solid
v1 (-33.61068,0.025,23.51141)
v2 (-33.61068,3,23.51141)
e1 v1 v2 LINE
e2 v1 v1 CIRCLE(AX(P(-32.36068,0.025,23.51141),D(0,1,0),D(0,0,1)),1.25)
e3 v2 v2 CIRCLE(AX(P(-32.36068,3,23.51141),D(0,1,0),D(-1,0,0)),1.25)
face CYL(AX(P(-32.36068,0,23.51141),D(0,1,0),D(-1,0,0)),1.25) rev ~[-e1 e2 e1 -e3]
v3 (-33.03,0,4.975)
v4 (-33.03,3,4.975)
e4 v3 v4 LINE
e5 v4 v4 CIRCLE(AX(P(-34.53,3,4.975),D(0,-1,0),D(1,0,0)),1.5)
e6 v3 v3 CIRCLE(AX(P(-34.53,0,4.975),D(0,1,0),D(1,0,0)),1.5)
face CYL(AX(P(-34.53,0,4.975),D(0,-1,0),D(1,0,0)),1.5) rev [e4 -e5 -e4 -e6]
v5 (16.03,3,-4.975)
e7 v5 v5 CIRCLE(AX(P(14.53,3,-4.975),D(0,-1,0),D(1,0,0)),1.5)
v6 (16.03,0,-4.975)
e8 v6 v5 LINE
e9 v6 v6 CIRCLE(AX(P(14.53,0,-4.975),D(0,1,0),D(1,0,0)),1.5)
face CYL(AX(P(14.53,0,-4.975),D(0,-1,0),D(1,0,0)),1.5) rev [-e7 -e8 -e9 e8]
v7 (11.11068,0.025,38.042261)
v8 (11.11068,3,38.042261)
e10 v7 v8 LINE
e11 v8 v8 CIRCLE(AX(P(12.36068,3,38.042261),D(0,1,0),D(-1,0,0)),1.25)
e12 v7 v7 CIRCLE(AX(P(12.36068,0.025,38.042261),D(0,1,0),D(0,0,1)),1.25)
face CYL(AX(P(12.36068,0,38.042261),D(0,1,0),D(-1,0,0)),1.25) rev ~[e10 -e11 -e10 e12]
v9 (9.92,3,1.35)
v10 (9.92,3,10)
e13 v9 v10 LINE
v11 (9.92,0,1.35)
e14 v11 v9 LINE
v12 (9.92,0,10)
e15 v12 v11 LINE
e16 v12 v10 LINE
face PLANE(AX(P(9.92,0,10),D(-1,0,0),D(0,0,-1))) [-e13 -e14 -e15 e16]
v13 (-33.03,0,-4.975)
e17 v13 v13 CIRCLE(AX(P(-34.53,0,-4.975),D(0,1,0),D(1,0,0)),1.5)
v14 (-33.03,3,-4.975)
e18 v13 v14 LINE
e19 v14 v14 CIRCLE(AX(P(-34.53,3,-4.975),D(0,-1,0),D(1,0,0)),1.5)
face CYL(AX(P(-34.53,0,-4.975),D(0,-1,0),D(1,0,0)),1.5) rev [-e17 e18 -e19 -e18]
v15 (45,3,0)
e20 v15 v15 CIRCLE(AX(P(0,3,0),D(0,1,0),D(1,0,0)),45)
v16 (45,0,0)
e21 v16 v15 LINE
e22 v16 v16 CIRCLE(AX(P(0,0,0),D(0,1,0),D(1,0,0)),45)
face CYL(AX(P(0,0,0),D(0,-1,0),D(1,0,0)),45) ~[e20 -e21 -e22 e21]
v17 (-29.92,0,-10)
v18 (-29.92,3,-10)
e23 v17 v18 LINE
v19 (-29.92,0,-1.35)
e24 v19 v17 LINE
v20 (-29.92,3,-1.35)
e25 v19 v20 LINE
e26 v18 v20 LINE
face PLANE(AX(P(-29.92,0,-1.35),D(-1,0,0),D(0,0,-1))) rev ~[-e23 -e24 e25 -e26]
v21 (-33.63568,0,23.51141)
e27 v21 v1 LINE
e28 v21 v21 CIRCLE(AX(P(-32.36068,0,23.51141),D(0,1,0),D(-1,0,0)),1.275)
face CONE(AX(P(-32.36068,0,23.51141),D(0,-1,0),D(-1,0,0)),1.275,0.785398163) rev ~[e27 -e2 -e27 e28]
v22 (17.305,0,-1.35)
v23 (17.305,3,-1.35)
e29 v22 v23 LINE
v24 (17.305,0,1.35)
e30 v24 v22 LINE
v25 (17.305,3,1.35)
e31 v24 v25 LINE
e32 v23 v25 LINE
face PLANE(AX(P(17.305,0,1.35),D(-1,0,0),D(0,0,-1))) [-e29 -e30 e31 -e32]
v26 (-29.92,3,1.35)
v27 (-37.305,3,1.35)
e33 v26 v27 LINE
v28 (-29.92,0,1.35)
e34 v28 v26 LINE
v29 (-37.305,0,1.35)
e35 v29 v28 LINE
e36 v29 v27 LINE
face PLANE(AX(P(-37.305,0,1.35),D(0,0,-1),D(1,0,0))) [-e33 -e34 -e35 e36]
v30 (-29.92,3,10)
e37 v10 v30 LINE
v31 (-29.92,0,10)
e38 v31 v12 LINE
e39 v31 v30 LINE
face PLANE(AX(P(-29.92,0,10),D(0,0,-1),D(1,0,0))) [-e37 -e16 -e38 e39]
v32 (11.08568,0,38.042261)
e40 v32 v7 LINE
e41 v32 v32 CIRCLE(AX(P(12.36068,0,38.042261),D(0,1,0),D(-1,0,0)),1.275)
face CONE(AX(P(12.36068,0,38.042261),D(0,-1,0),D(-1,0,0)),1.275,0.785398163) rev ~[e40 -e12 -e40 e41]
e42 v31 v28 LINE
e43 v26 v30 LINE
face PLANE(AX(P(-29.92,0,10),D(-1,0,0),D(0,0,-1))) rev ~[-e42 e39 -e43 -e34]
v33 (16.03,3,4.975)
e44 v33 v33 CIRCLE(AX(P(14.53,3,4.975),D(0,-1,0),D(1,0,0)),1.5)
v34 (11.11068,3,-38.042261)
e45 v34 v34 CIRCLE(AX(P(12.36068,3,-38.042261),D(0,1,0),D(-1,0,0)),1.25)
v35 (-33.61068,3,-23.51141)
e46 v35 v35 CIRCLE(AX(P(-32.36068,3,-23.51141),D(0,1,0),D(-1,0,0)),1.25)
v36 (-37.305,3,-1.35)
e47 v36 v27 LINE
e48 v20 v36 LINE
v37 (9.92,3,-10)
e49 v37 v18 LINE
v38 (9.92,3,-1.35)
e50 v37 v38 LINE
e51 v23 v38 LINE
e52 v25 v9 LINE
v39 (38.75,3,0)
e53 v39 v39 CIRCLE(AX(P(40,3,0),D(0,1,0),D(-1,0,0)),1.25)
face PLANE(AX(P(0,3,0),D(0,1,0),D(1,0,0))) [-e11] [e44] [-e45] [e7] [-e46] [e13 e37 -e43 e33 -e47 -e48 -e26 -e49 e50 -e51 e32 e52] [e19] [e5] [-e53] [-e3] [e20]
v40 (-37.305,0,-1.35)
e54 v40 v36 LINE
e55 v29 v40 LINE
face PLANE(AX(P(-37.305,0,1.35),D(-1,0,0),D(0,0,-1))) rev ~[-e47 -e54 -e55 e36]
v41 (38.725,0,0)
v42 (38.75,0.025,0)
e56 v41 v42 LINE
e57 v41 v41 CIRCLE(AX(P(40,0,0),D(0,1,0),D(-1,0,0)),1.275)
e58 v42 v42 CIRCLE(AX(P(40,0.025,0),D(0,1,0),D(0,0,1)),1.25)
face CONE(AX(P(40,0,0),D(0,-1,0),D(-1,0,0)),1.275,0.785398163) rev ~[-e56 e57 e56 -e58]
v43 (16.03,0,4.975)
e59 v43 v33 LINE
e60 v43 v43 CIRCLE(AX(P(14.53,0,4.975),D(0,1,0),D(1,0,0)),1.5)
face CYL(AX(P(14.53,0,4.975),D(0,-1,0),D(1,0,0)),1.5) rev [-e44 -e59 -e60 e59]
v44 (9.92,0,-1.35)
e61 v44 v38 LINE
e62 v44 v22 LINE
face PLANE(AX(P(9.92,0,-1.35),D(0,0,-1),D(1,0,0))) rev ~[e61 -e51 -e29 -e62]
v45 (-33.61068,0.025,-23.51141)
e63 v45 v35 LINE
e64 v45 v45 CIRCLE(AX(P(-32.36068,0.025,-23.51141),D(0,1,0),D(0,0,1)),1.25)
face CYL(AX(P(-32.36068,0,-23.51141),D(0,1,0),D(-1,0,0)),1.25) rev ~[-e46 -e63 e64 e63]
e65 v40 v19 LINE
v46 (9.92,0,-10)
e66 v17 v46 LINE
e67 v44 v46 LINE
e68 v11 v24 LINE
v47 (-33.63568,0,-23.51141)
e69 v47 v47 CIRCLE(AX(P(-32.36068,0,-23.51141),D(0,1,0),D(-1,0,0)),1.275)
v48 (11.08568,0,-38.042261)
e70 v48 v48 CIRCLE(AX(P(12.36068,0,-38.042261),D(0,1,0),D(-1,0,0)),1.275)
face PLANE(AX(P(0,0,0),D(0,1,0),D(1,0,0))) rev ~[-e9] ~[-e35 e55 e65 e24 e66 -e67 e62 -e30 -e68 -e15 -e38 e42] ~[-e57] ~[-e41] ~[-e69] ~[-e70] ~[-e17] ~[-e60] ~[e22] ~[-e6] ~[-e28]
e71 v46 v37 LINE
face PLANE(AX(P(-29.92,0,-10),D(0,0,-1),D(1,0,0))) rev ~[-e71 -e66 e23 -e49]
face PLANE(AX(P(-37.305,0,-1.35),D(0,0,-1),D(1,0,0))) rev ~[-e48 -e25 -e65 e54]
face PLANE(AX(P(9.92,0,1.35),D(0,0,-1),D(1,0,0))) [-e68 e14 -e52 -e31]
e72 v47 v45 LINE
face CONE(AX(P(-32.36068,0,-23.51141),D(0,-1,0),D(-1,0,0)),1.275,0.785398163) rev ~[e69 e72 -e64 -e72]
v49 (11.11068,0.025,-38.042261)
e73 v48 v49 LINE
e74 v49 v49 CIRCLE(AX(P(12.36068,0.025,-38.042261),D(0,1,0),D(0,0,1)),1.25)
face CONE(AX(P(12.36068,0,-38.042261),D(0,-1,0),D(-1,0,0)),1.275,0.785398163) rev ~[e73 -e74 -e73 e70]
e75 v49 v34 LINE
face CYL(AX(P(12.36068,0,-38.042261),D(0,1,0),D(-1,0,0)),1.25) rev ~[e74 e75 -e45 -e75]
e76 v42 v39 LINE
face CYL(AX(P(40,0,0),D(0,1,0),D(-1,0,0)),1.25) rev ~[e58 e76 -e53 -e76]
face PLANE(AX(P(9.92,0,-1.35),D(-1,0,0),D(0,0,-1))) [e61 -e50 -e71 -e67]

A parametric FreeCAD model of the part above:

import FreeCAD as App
import Part
import Sketcher
from FreeCAD import Vector

doc = App.newDocument("Part")
body = doc.addObject("PartDesign::Body", "Body")

sketch1 = body.newObject("Sketcher::SketchObject", "Sketch")
sketch1.AttachmentSupport = (doc.getObject("XZ_Plane"), [""])
sketch1.MapMode = "FlatFace"
sketch1.addGeometry(Part.Circle(Vector(0, 0, 0), Vector(0, 0, 1), 45), False)
sketch1.addConstraint(Sketcher.Constraint("Coincident", 0, 3, -1, 1))
sketch1.addConstraint(Sketcher.Constraint("Diameter", 0, 90.0))
pad1 = body.newObject("PartDesign::Pad", "Pad")
pad1.Profile = sketch1
pad1.Length = 3
pad1.Reversed = True

sketch2 = body.newObject("Sketcher::SketchObject", "Sketch001")
sketch2.AttachmentSupport = (doc.getObject("XZ_Plane"), [""])
sketch2.MapMode = "FlatFace"
sketch2.addGeometry(Part.Circle(Vector(40, 0, 0), Vector(0, 0, 1), 1.2), False)
sketch2.addGeometry(Part.Circle(Vector(12.4, 38, 0), Vector(0, 0, 1), 1.2), False)
sketch2.addGeometry(Part.Circle(Vector(-32.4, 23.5, 0), Vector(0, 0, 1), 1.2), False)
sketch2.addGeometry(Part.Circle(Vector(-32.4, -23.5, 0), Vector(0, 0, 1), 1.2), False)
sketch2.addGeometry(Part.Circle(Vector(12.4, -38, 0), Vector(0, 0, 1), 1.2), False)
sketch2.addConstraint(Sketcher.Constraint("Equal", 0, 1))
sketch2.addConstraint(Sketcher.Constraint("Equal", 1, 2))
sketch2.addConstraint(Sketcher.Constraint("Equal", 2, 3))
sketch2.addConstraint(Sketcher.Constraint("Equal", 3, 4))
sketch2.addConstraint(Sketcher.Constraint("Symmetric", 2, 3, 3, 3, -1))
sketch2.addConstraint(Sketcher.Constraint("Symmetric", 1, 3, 4, 3, -1))
sketch2.addConstraint(Sketcher.Constraint("PointOnObject", 0, 3, -1))
sketch2.addConstraint(Sketcher.Constraint("Diameter", 0, 2.5))
sketch2.addConstraint(Sketcher.Constraint("DistanceX", -1, 1, 0, 3, 40.0))
sketch2.addConstraint(Sketcher.Constraint("DistanceX", -1, 1, 1, 3, 12.36068))
sketch2.addConstraint(Sketcher.Constraint("DistanceY", -1, 1, 1, 3, 38.042261))
sketch2.addConstraint(Sketcher.Constraint("DistanceX", 2, 3, -1, 1, 32.36068))
sketch2.addConstraint(Sketcher.Constraint("DistanceY", -1, 1, 2, 3, 23.51141))
doc.recompute()
hole = body.newObject("PartDesign::Hole", "Hole")
hole.Profile = sketch2
hole.ThreadType = "None"
hole.Diameter = 2.5
hole.DepthType = "ThroughAll"
hole.HoleCutType = "Countersink"
hole.HoleCutDiameter = 2.55
hole.HoleCutCountersinkAngle = 90

sketch3 = body.newObject("Sketcher::SketchObject", "Sketch002")
sketch3.AttachmentSupport = (doc.getObject("XZ_Plane"), [""])
sketch3.MapMode = "FlatFace"
sketch3.addGeometry(Part.Circle(Vector(14.5, -5, 0), Vector(0, 0, 1), 1.5), False)
sketch3.addGeometry(Part.Circle(Vector(14.5, 5, 0), Vector(0, 0, 1), 1.5), False)
sketch3.addGeometry(Part.Circle(Vector(-34.5, -5, 0), Vector(0, 0, 1), 1.5), False)
sketch3.addGeometry(Part.Circle(Vector(-34.5, 5, 0), Vector(0, 0, 1), 1.5), False)
sketch3.addGeometry(Part.LineSegment(Vector(9.9, 1.4, 0), Vector(17.3, 1.4, 0)), False)
sketch3.addGeometry(Part.LineSegment(Vector(17.3, 1.4, 0), Vector(17.3, -1.4, 0)), False)
sketch3.addGeometry(Part.LineSegment(Vector(17.3, -1.4, 0), Vector(9.9, -1.4, 0)), False)
sketch3.addGeometry(Part.LineSegment(Vector(9.9, -1.4, 0), Vector(9.9, -10, 0)), False)
sketch3.addGeometry(Part.LineSegment(Vector(9.9, -10, 0), Vector(-29.9, -10, 0)), False)
sketch3.addGeometry(Part.LineSegment(Vector(-29.9, -10, 0), Vector(-29.9, -1.4, 0)), False)
sketch3.addGeometry(Part.LineSegment(Vector(-29.9, -1.4, 0), Vector(-37.3, -1.4, 0)), False)
sketch3.addGeometry(Part.LineSegment(Vector(-37.3, -1.4, 0), Vector(-37.3, 1.4, 0)), False)
sketch3.addGeometry(Part.LineSegment(Vector(-37.3, 1.4, 0), Vector(-29.9, 1.4, 0)), False)
sketch3.addGeometry(Part.LineSegment(Vector(-29.9, 1.4, 0), Vector(-29.9, 10, 0)), False)
sketch3.addGeometry(Part.LineSegment(Vector(-29.9, 10, 0), Vector(9.9, 10, 0)), False)
sketch3.addGeometry(Part.LineSegment(Vector(9.9, 10, 0), Vector(9.9, 1.4, 0)), False)
sketch3.addConstraint(Sketcher.Constraint("Coincident", 4, 2, 5, 1))
sketch3.addConstraint(Sketcher.Constraint("Coincident", 5, 2, 6, 1))
sketch3.addConstraint(Sketcher.Constraint("Coincident", 6, 2, 7, 1))
sketch3.addConstraint(Sketcher.Constraint("Coincident", 7, 2, 8, 1))
sketch3.addConstraint(Sketcher.Constraint("Coincident", 8, 2, 9, 1))
sketch3.addConstraint(Sketcher.Constraint("Coincident", 9, 2, 10, 1))
sketch3.addConstraint(Sketcher.Constraint("Coincident", 10, 2, 11, 1))
sketch3.addConstraint(Sketcher.Constraint("Coincident", 11, 2, 12, 1))
sketch3.addConstraint(Sketcher.Constraint("Coincident", 12, 2, 13, 1))
sketch3.addConstraint(Sketcher.Constraint("Coincident", 13, 2, 14, 1))
sketch3.addConstraint(Sketcher.Constraint("Coincident", 14, 2, 15, 1))
sketch3.addConstraint(Sketcher.Constraint("Coincident", 15, 2, 4, 1))
sketch3.addConstraint(Sketcher.Constraint("Horizontal", 4))
sketch3.addConstraint(Sketcher.Constraint("Vertical", 5))
sketch3.addConstraint(Sketcher.Constraint("Horizontal", 6))
sketch3.addConstraint(Sketcher.Constraint("Vertical", 7))
sketch3.addConstraint(Sketcher.Constraint("Horizontal", 8))
sketch3.addConstraint(Sketcher.Constraint("Vertical", 9))
sketch3.addConstraint(Sketcher.Constraint("Horizontal", 10))
sketch3.addConstraint(Sketcher.Constraint("Vertical", 11))
sketch3.addConstraint(Sketcher.Constraint("Horizontal", 12))
sketch3.addConstraint(Sketcher.Constraint("Vertical", 13))
sketch3.addConstraint(Sketcher.Constraint("Horizontal", 14))
sketch3.addConstraint(Sketcher.Constraint("Vertical", 15))
sketch3.addConstraint(Sketcher.Constraint("Equal", 0, 1))
sketch3.addConstraint(Sketcher.Constraint("Equal", 1, 2))
sketch3.addConstraint(Sketcher.Constraint("Equal", 2, 3))
sketch3.addConstraint(Sketcher.Constraint("Symmetric", 0, 3, 1, 3, -1))
sketch3.addConstraint(Sketcher.Constraint("Symmetric", 2, 3, 3, 3, -1))
sketch3.addConstraint(Sketcher.Constraint("Symmetric", 9, 2, 12, 2, -1))
sketch3.addConstraint(Sketcher.Constraint("Symmetric", 7, 2, 14, 2, -1))
sketch3.addConstraint(Sketcher.Constraint("Horizontal", 0, 3, 2, 3))
sketch3.addConstraint(Sketcher.Constraint("Horizontal", 6, 2, 9, 2))
sketch3.addConstraint(Sketcher.Constraint("Horizontal", 4, 2, 11, 2))
sketch3.addConstraint(Sketcher.Constraint("Equal", 6, 10))
sketch3.addConstraint(Sketcher.Constraint("Diameter", 0, 3.0))
sketch3.addConstraint(Sketcher.Constraint("DistanceY", 5, 2, 5, 1, 2.7))
sketch3.addConstraint(Sketcher.Constraint("DistanceY", 7, 2, -1, 1, 10.0))
sketch3.addConstraint(Sketcher.Constraint("DistanceX", 8, 2, 8, 1, 39.84))
sketch3.addConstraint(Sketcher.Constraint("DistanceX", 4, 1, 4, 2, 7.385))
sketch3.addConstraint(Sketcher.Constraint("DistanceX", -1, 1, 0, 3, 14.53))
sketch3.addConstraint(Sketcher.Constraint("DistanceX", 2, 3, -1, 1, 34.53))
sketch3.addConstraint(Sketcher.Constraint("DistanceX", -1, 1, 6, 2, 9.92))
sketch3.addConstraint(Sketcher.Constraint("DistanceY", 0, 3, 1, 3, 9.95))
pocket1 = body.newObject("PartDesign::Pocket", "Pocket")
pocket1.Profile = sketch3
pocket1.Type = "ThroughAll"
pocket1.Midplane = True

doc.recompute()
